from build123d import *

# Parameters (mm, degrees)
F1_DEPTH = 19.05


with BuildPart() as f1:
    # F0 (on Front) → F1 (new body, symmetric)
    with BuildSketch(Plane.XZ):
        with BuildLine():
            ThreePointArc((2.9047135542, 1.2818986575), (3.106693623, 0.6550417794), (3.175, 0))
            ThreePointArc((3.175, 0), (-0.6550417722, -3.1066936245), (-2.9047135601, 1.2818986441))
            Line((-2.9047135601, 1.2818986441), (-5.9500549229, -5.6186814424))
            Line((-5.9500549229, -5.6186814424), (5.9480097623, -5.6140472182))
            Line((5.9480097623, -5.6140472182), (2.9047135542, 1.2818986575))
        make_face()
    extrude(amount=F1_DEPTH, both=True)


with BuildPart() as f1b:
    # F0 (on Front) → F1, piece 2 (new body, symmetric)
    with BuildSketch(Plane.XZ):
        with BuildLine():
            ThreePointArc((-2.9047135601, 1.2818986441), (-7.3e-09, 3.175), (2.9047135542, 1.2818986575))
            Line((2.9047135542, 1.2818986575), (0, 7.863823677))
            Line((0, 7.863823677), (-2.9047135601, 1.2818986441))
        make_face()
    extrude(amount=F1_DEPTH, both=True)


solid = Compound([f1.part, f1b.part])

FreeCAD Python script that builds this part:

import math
import FreeCAD as App
import Part
import Sketcher
from FreeCAD import Vector
Q = App.Units.Quantity

doc = App.newDocument("Part")
body = doc.addObject("PartDesign::Body", "Body")

sketch1 = doc.addObject("Sketcher::SketchObject", "Sketch")
body.addObject(sketch1)
sketch1.AttachmentSupport = (doc.XZ_Plane, [""])
sketch1.MapMode = "FlatFace"
sketch1.addGeometry([
    Part.ArcOfCircle(Part.Circle(Vector(0, 0, 0), Vector(0, 0, 1), 3.2), math.radians(0), math.radians(24)),
    Part.ArcOfCircle(Part.Circle(Vector(0, 0, 0), Vector(0, 0, 1), 3.2), math.radians(156), math.radians(360)),
    Part.LineSegment(Vector(-2.9, 1.3, 0), Vector(-6, -5.6, 0)),
    Part.LineSegment(Vector(-6, -5.6, 0), Vector(5.9, -5.6, 0)),
    Part.LineSegment(Vector(5.9, -5.6, 0), Vector(2.9, 1.3, 0)),
], False)
sketch1.addConstraint([
    Sketcher.Constraint("Tangent", 0, 1, 1, 2),
    Sketcher.Constraint("Tangent", 1, 1, 2, 1),
    Sketcher.Constraint("Coincident", 2, 2, 3, 1),
    Sketcher.Constraint("Coincident", 3, 2, 4, 1),
    Sketcher.Constraint("Tangent", 4, 2, 0, 2),
    Sketcher.Constraint("Coincident", 0, 3, -1, 1),
    Sketcher.Constraint("Equal", 0, 1),
    Sketcher.Constraint("PointOnObject", 0, 1, -1),
    Sketcher.Constraint("Horizontal", 1, 1, 4, 2),
    Sketcher.Constraint("Radius", 0, Q("0.125 in")),
    Sketcher.Constraint("DistanceY", -1, 1, 1, 1, 1.281899),
    Sketcher.Constraint("Distance", 4, 7.53762),
    Sketcher.Constraint("DistanceY", 2, 2, -1, 1, 5.618681),
])
pad1 = doc.addObject("PartDesign::Pad", "Pad")
body.addObject(pad1)
pad1.Profile = sketch1
pad1.Length = Q("1.5 in")
pad1.Midplane = True
body2 = doc.addObject("PartDesign::Body", "Body001")

sketch2 = doc.addObject("Sketcher::SketchObject", "Sketch001")
body2.addObject(sketch2)
sketch2.AttachmentSupport = (doc.getObject("XZ_Plane001"), [""])
sketch2.MapMode = "FlatFace"
sketch2.addGeometry([
    Part.ArcOfCircle(Part.Circle(Vector(0, 0, 0), Vector(0, 0, 1), 3.2), math.radians(24), math.radians(156)),
    Part.LineSegment(Vector(2.9, 1.3, 0), Vector(0, 7.9, 0)),
    Part.LineSegment(Vector(0, 7.9, 0), Vector(-2.9, 1.3, 0)),
], False)
sketch2.addConstraint([
    Sketcher.Constraint("Tangent", 0, 1, 1, 1),
    Sketcher.Constraint("Coincident", 1, 2, 2, 1),
    Sketcher.Constraint("Tangent", 2, 2, 0, 2),
    Sketcher.Constraint("Coincident", 0, 3, -1, 1),
    Sketcher.Constraint("PointOnObject", 1, 2, -2),
    Sketcher.Constraint("Radius", 0, Q("0.125 in")),
    Sketcher.Constraint("DistanceY", -1, 1, 0, 1, 1.281899),
])
pad2 = doc.addObject("PartDesign::Pad", "Pad001")
body2.addObject(pad2)
pad2.Profile = sketch2
pad2.Length = Q("1.5 in")
pad2.Midplane = True

doc.recompute()
